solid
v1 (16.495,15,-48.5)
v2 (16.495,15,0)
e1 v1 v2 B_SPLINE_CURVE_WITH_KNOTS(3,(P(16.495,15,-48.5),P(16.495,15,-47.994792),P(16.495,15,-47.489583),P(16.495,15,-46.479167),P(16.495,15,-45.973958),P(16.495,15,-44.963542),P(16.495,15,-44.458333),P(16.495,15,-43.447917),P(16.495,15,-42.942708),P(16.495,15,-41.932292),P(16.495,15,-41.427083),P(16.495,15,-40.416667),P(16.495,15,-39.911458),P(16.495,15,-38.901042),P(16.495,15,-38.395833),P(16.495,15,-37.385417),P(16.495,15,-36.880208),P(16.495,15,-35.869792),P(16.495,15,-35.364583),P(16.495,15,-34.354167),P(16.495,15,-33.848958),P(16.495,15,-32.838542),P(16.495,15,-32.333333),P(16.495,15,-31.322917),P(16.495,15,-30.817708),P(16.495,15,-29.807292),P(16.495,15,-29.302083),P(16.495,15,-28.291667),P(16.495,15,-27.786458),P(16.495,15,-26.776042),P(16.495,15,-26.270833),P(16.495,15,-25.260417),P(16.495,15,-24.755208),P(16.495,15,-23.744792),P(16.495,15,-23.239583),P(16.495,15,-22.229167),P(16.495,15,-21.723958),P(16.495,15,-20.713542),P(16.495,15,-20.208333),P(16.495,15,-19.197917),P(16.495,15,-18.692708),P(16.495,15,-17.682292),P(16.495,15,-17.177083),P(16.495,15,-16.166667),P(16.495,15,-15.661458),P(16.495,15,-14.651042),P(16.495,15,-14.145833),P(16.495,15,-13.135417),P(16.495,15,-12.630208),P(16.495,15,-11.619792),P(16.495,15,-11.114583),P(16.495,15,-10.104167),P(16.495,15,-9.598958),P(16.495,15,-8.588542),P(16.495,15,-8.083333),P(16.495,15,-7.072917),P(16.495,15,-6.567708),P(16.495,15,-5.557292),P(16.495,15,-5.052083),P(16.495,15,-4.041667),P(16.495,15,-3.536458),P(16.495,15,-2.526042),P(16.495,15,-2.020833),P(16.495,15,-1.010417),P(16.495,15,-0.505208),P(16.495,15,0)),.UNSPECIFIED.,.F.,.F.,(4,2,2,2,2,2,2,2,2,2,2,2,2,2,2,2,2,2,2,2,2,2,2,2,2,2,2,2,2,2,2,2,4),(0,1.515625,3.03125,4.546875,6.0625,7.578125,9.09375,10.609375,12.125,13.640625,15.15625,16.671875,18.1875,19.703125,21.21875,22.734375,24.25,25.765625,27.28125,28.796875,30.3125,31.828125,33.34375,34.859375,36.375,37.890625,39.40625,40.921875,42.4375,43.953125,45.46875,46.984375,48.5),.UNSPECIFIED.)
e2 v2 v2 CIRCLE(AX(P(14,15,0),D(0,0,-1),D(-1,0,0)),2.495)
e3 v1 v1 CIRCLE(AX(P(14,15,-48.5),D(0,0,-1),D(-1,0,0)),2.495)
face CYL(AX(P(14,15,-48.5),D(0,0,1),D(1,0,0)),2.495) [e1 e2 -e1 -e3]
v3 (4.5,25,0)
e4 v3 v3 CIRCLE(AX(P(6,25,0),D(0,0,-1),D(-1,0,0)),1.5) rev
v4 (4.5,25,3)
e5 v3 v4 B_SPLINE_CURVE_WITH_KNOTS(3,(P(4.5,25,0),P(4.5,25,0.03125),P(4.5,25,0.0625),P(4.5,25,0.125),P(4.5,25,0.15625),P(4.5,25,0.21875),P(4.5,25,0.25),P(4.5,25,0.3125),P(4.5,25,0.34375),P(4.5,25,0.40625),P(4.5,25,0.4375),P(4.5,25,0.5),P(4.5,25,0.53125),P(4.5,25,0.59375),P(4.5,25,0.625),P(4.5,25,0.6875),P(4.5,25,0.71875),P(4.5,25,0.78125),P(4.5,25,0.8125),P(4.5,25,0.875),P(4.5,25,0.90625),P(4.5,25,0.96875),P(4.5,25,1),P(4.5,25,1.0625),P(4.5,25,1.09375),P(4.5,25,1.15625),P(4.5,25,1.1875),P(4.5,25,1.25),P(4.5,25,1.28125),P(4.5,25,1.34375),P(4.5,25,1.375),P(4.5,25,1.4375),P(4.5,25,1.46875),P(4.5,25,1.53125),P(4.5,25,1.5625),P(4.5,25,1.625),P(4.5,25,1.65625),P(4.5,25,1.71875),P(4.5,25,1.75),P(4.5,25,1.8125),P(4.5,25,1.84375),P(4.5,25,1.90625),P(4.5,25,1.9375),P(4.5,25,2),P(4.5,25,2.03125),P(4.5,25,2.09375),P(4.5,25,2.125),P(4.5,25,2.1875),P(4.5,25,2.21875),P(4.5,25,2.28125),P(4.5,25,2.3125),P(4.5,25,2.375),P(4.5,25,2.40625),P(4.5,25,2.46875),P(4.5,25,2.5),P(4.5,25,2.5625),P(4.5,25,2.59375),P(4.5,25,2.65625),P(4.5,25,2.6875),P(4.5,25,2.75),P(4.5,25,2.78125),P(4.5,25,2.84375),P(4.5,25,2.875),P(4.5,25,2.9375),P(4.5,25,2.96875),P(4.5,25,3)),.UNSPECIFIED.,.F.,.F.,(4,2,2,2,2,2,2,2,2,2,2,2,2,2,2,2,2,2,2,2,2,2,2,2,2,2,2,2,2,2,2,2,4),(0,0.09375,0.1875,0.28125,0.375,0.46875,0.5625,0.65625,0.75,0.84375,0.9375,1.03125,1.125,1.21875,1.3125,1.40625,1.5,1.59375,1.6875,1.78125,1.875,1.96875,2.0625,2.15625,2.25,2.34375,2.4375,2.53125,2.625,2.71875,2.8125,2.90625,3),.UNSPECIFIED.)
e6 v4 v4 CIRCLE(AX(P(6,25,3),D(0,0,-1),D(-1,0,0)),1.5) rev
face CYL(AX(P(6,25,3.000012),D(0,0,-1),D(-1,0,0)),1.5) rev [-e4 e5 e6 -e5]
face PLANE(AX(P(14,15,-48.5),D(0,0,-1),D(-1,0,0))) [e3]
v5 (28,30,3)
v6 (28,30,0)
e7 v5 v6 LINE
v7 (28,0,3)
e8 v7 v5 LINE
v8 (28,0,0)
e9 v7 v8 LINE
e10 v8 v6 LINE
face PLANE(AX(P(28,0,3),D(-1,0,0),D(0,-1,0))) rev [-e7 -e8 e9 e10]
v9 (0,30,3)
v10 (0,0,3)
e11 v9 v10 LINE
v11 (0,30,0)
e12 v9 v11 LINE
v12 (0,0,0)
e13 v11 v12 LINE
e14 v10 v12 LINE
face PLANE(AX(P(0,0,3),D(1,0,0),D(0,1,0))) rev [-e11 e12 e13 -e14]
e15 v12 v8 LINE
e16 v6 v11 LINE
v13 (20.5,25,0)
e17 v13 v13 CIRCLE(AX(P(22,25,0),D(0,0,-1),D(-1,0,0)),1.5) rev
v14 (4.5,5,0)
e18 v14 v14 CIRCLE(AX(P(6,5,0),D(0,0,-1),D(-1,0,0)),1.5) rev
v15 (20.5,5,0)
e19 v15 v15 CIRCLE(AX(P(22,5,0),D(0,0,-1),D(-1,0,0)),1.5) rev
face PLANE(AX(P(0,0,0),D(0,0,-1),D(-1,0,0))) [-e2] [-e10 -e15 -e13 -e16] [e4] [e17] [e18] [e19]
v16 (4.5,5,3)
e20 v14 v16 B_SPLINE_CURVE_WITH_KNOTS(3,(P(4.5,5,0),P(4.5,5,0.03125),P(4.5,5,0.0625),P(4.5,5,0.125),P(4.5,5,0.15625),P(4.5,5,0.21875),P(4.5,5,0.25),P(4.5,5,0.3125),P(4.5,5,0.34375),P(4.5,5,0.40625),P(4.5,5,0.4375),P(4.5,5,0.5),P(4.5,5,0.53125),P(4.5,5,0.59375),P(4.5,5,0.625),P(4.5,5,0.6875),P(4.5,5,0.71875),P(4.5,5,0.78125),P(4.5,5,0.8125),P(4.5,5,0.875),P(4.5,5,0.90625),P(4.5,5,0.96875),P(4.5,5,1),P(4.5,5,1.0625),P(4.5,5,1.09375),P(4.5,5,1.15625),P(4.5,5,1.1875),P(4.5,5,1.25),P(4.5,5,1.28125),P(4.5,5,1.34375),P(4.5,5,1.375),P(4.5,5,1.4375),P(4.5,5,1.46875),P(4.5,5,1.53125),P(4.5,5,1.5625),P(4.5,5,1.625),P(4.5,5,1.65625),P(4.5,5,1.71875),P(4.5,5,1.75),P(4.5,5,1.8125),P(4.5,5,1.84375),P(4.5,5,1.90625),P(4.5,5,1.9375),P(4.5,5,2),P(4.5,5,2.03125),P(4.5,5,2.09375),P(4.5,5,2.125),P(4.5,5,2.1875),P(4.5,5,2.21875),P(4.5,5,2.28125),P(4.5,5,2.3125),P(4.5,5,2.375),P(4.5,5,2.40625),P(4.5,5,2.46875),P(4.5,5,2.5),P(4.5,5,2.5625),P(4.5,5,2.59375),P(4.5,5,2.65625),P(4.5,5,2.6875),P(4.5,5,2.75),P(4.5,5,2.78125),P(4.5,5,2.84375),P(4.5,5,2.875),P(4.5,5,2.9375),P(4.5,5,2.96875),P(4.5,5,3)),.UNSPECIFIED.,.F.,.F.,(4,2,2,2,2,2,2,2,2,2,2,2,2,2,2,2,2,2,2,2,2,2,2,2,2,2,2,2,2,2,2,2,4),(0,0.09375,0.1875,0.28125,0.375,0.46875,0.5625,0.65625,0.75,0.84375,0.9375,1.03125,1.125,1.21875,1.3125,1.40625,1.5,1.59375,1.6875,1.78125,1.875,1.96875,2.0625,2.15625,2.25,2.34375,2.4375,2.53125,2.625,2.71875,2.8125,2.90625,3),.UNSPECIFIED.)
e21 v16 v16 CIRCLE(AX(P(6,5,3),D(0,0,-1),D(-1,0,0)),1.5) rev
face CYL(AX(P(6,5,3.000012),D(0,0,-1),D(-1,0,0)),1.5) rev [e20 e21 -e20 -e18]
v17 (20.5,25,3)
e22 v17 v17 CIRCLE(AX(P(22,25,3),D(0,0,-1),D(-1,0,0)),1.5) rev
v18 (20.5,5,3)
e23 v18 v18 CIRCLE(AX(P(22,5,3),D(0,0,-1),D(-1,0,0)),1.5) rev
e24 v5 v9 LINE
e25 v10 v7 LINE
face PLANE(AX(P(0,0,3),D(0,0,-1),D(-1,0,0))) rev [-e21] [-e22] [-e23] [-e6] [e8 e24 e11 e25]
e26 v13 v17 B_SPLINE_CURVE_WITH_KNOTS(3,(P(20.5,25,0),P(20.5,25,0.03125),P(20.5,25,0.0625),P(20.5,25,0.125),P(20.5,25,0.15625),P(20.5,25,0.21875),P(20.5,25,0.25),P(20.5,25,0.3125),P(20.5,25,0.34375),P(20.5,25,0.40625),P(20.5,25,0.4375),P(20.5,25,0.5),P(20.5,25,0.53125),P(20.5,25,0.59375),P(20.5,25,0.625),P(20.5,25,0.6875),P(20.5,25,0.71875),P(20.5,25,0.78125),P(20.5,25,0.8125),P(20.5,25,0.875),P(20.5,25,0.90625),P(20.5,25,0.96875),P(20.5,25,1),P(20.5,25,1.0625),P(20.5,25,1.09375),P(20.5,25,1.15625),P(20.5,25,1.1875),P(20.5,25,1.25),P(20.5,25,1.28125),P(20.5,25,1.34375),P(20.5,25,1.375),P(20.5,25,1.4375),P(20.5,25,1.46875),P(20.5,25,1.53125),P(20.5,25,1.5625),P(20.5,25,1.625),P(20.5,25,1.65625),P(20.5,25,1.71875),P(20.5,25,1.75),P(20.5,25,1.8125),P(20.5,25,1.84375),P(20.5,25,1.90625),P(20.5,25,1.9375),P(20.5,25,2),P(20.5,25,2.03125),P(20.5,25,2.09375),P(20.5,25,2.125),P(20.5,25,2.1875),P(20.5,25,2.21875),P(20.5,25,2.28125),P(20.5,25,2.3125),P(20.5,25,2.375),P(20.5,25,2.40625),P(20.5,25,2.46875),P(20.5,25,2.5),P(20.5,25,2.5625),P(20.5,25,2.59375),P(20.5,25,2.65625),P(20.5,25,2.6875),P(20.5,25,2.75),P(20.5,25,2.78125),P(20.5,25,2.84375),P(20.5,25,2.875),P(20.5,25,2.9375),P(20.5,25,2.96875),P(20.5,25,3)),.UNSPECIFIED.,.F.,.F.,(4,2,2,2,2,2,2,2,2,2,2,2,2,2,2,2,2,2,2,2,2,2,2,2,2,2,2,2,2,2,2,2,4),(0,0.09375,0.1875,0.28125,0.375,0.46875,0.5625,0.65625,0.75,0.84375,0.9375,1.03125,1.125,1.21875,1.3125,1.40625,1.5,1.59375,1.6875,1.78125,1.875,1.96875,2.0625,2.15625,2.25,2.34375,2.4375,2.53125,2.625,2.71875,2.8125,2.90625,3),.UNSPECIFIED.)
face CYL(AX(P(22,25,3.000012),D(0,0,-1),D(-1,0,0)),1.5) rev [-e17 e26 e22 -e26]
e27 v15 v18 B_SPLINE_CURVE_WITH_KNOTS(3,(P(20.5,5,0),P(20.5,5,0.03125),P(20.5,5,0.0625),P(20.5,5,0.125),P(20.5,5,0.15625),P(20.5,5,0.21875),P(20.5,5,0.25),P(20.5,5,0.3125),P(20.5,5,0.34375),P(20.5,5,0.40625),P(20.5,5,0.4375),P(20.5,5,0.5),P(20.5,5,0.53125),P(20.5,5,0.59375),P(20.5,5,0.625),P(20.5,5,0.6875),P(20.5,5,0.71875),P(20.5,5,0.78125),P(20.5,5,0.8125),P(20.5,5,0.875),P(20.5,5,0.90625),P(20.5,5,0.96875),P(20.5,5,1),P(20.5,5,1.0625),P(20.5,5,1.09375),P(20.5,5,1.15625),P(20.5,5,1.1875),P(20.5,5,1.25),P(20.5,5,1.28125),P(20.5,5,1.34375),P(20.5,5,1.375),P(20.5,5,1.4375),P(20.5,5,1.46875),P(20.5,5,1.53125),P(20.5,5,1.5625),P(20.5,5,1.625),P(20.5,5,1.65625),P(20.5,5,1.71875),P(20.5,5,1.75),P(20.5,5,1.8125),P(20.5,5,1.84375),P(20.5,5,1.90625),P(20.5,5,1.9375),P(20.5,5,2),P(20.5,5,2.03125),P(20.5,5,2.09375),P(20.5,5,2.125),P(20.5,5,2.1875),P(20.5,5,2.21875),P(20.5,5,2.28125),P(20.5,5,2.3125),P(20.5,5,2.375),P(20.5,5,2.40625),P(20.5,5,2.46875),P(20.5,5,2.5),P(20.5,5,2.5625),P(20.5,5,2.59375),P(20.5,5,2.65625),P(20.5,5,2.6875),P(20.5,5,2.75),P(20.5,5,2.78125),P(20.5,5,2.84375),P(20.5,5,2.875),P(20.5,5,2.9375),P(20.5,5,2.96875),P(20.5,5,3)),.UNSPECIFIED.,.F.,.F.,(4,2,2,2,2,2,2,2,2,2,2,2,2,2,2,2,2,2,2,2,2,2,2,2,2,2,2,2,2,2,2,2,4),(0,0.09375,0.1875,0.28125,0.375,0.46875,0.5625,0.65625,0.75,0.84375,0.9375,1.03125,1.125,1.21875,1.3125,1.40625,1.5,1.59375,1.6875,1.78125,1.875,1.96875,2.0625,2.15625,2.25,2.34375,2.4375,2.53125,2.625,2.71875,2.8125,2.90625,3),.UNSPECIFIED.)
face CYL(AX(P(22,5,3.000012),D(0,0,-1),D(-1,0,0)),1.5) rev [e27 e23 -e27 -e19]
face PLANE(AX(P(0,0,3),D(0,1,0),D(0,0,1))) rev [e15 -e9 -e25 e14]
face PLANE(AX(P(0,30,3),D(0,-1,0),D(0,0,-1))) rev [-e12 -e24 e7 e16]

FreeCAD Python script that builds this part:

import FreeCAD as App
import Part
import Sketcher
from FreeCAD import Vector


def add_polygon(sketch, points):
    """Adds a closed chain of lines whose ends are joined by coincident constraints."""
    first, n = sketch.GeometryCount, len(points)
    for a, b in zip(points, points[1:] + points[:1]):
        sketch.addGeometry(Part.LineSegment(App.Vector(*a, 0), App.Vector(*b, 0)), False)
    for i in range(n):
        sketch.addConstraint(Sketcher.Constraint("Coincident", first + i, 2, first + (i + 1) % n, 1))

doc = App.newDocument("Part")
body = doc.addObject("PartDesign::Body", "Body")

sketch1 = doc.addObject("Sketcher::SketchObject", "Sketch")
body.addObject(sketch1)
sketch1.AttachmentSupport = (doc.XY_Plane, [""])
sketch1.MapMode = "FlatFace"
add_polygon(sketch1, [(0, 30), (0, 0), (28, 0), (28, 30)])
sketch1.addConstraint(Sketcher.Constraint("Vertical", 0))
sketch1.addConstraint(Sketcher.Constraint("Horizontal", 1))
sketch1.addConstraint(Sketcher.Constraint("Vertical", 2))
sketch1.addConstraint(Sketcher.Constraint("Horizontal", 3))
sketch1.addConstraint(Sketcher.Constraint("Coincident", 0, 2, -1, 1))
sketch1.addConstraint(Sketcher.Constraint("DistanceX", 1, 1, 1, 2, 28.0))
sketch1.addConstraint(Sketcher.Constraint("DistanceY", 0, 2, 0, 1, 30.0))
pad1 = doc.addObject("PartDesign::Pad", "Pad")
body.addObject(pad1)
pad1.Profile = sketch1
pad1.Length = 3

sketch2 = doc.addObject("Sketcher::SketchObject", "Sketch001")
body.addObject(sketch2)
sketch2.AttachmentSupport = (doc.XY_Plane, [""])
sketch2.MapMode = "FlatFace"
sketch2.AttachmentOffset = App.Placement(Vector(0, 0, 3), App.Rotation())
sketch2.addGeometry(Part.Circle(Vector(6, 25, 0), Vector(0, 0, 1), 1.5), False)
sketch2.addConstraint(Sketcher.Constraint("Diameter", 0, 3.0))
sketch2.addConstraint(Sketcher.Constraint("DistanceX", -1, 1, 0, 3, 6.0))
sketch2.addConstraint(Sketcher.Constraint("DistanceY", -1, 1, 0, 3, 25.0))
pocket1 = doc.addObject("PartDesign::Pocket", "Pocket")
body.addObject(pocket1)
pocket1.Profile = sketch2
pocket1.Type = "UpToFirst"

sketch3 = doc.addObject("Sketcher::SketchObject", "Sketch002")
body.addObject(sketch3)
sketch3.AttachmentSupport = (doc.XY_Plane, [""])
sketch3.MapMode = "FlatFace"
sketch3.AttachmentOffset = App.Placement(Vector(0, 0, 3), App.Rotation())
sketch3.addGeometry(Part.Circle(Vector(22, 25, 0), Vector(0, 0, 1), 1.5), False)
sketch3.addConstraint(Sketcher.Constraint("Diameter", 0, 3.0))
sketch3.addConstraint(Sketcher.Constraint("DistanceX", -1, 1, 0, 3, 22.0))
sketch3.addConstraint(Sketcher.Constraint("DistanceY", -1, 1, 0, 3, 25.0))
pocket2 = doc.addObject("PartDesign::Pocket", "Pocket001")
body.addObject(pocket2)
pocket2.Profile = sketch3
pocket2.Type = "UpToFirst"

sketch4 = doc.addObject("Sketcher::SketchObject", "Sketch003")
body.addObject(sketch4)
sketch4.AttachmentSupport = (doc.XY_Plane, [""])
sketch4.MapMode = "FlatFace"
sketch4.AttachmentOffset = App.Placement(Vector(0, 0, 3), App.Rotation())
sketch4.addGeometry(Part.Circle(Vector(22, 5, 0), Vector(0, 0, 1), 1.5), False)
sketch4.addConstraint(Sketcher.Constraint("Diameter", 0, 3.0))
sketch4.addConstraint(Sketcher.Constraint("DistanceX", -1, 1, 0, 3, 22.0))
sketch4.addConstraint(Sketcher.Constraint("DistanceY", -1, 1, 0, 3, 5.0))
pocket3 = doc.addObject("PartDesign::Pocket", "Pocket002")
body.addObject(pocket3)
pocket3.Profile = sketch4
pocket3.Type = "UpToFirst"

sketch5 = doc.addObject("Sketcher::SketchObject", "Sketch004")
body.addObject(sketch5)
sketch5.AttachmentSupport = (doc.XY_Plane, [""])
sketch5.MapMode = "FlatFace"
sketch5.AttachmentOffset = App.Placement(Vector(0, 0, 3), App.Rotation())
sketch5.addGeometry(Part.Circle(Vector(6, 5, 0), Vector(0, 0, 1), 1.5), False)
sketch5.addConstraint(Sketcher.Constraint("Diameter", 0, 3.0))
sketch5.addConstraint(Sketcher.Constraint("DistanceX", -1, 1, 0, 3, 6.0))
sketch5.addConstraint(Sketcher.Constraint("DistanceY", -1, 1, 0, 3, 5.0))
pocket4 = doc.addObject("PartDesign::Pocket", "Pocket003")
body.addObject(pocket4)
pocket4.Profile = sketch5
pocket4.Type = "UpToFirst"

sketch6 = doc.addObject("Sketcher::SketchObject", "Sketch005")
body.addObject(sketch6)
sketch6.AttachmentSupport = (doc.XY_Plane, [""])
sketch6.MapMode = "FlatFace"
sketch6.AttachmentOffset = App.Placement(Vector(0, 0, 3), App.Rotation())
sketch6.addGeometry(Part.Circle(Vector(6, 25, 0), Vector(0, 0, 1), 1.5), False)
sketch6.addGeometry(Part.Circle(Vector(22, 25, 0), Vector(0, 0, 1), 1.5), False)
sketch6.addGeometry(Part.Circle(Vector(22, 5, 0), Vector(0, 0, 1), 1.5), False)
sketch6.addGeometry(Part.Circle(Vector(6, 5, 0), Vector(0, 0, 1), 1.5), False)
sketch6.addConstraint(Sketcher.Constraint("Equal", 0, 1))
sketch6.addConstraint(Sketcher.Constraint("Equal", 1, 2))
sketch6.addConstraint(Sketcher.Constraint("Equal", 2, 3))
sketch6.addConstraint(Sketcher.Constraint("Horizontal", 0, 3, 1, 3))
sketch6.addConstraint(Sketcher.Constraint("Horizontal", 2, 3, 3, 3))
sketch6.addConstraint(Sketcher.Constraint("Vertical", 1, 3, 2, 3))
sketch6.addConstraint(Sketcher.Constraint("Vertical", 0, 3, 3, 3))
sketch6.addConstraint(Sketcher.Constraint("Diameter", 0, 3.0))
sketch6.addConstraint(Sketcher.Constraint("DistanceX", -1, 1, 0, 3, 6.0))
sketch6.addConstraint(Sketcher.Constraint("DistanceY", -1, 1, 0, 3, 25.0))
sketch6.addConstraint(Sketcher.Constraint("DistanceX", -1, 1, 1, 3, 22.0))
sketch6.addConstraint(Sketcher.Constraint("DistanceY", -1, 1, 2, 3, 5.0))
pocket5 = doc.addObject("PartDesign::Pocket", "Pocket004")
body.addObject(pocket5)
pocket5.Profile = sketch6
pocket5.Length = 42.146081
pocket5.Reversed = True

sketch7 = doc.addObject("Sketcher::SketchObject", "Sketch006")
body.addObject(sketch7)
sketch7.AttachmentSupport = (doc.XY_Plane, [""])
sketch7.MapMode = "FlatFace"
sketch7.addGeometry(Part.Circle(Vector(14, 15, 0), Vector(0, 0, 1), 2.5), False)
sketch7.addConstraint(Sketcher.Constraint("Diameter", 0, 4.99))
sketch7.addConstraint(Sketcher.Constraint("DistanceX", -1, 1, 0, 3, 14.0))
sketch7.addConstraint(Sketcher.Constraint("DistanceY", -1, 1, 0, 3, 15.0))
pad2 = doc.addObject("PartDesign::Pad", "Pad001")
body.addObject(pad2)
pad2.Profile = sketch7
pad2.Length = 48.5
pad2.Reversed = True

doc.recompute()
